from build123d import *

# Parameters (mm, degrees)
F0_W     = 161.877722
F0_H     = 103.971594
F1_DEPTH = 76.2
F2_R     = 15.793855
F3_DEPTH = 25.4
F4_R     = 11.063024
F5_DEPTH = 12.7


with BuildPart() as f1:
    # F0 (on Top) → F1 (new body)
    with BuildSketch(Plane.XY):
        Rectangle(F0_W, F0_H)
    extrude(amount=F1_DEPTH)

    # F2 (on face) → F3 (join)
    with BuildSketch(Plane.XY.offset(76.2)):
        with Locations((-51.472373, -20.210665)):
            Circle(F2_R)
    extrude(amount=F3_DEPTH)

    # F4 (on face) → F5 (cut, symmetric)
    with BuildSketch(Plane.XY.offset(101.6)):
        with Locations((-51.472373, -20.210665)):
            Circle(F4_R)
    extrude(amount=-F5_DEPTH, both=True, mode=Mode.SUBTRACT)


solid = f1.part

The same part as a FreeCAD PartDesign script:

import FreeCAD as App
import Part
import Sketcher
from FreeCAD import Vector
Q = App.Units.Quantity


def add_polygon(sketch, points):
    """Adds a closed chain of lines whose ends are joined by coincident constraints."""
    first, n = sketch.GeometryCount, len(points)
    for a, b in zip(points, points[1:] + points[:1]):
        sketch.addGeometry(Part.LineSegment(App.Vector(*a, 0), App.Vector(*b, 0)), False)
    for i in range(n):
        sketch.addConstraint(Sketcher.Constraint("Coincident", first + i, 2, first + (i + 1) % n, 1))

doc = App.newDocument("Part")
body = doc.addObject("PartDesign::Body", "Body")

sketch1 = body.newObject("Sketcher::SketchObject", "Sketch")
sketch1.AttachmentSupport = (doc.getObject("XY_Plane"), [""])
sketch1.MapMode = "FlatFace"
add_polygon(sketch1, [(-81, 52), (-81, -52), (81, -52), (81, 52)])
sketch1.addConstraint([
    Sketcher.Constraint("Vertical", 0),
    Sketcher.Constraint("Horizontal", 1),
    Sketcher.Constraint("Vertical", 2),
    Sketcher.Constraint("Horizontal", 3),
    Sketcher.Constraint("Symmetric", 0, 2, 2, 2, -1, 1),
    Sketcher.Constraint("DistanceX", 1, 1, 1, 2, Q("161.877722 mm")),
    Sketcher.Constraint("DistanceY", 0, 2, 0, 1, Q("103.971594 mm")),
])
pad1 = body.newObject("PartDesign::Pad", "Pad")
pad1.Profile = sketch1
pad1.Length = Q("3 in")

sketch2 = body.newObject("Sketcher::SketchObject", "Sketch001")
sketch2.AttachmentSupport = (doc.getObject("XY_Plane"), [""])
sketch2.MapMode = "FlatFace"
sketch2.AttachmentOffset = App.Placement(Vector(0, 0, 3 * 25.4), App.Rotation())
sketch2.addGeometry(Part.Circle(Vector(-51, -20, 0), Vector(0, 0, 1), 16), False)
sketch2.addConstraint([
    Sketcher.Constraint("Diameter", 0, Q("31.58771 mm")),
    Sketcher.Constraint("DistanceX", 0, 3, -1, 1, Q("51.472373 mm")),
    Sketcher.Constraint("DistanceY", 0, 3, -1, 1, Q("20.210665 mm")),
])
pad2 = body.newObject("PartDesign::Pad", "Pad001")
pad2.Profile = sketch2
pad2.Length = Q("1 in")

sketch3 = body.newObject("Sketcher::SketchObject", "Sketch002")
sketch3.AttachmentSupport = (doc.getObject("XY_Plane"), [""])
sketch3.MapMode = "FlatFace"
sketch3.AttachmentOffset = App.Placement(Vector(0, 0, 4 * 25.4), App.Rotation())
sketch3.addGeometry(Part.Circle(Vector(-51, -20, 0), Vector(0, 0, 1), 11), False)
sketch3.addConstraint([
    Sketcher.Constraint("Diameter", 0, Q("22.126048 mm")),
    Sketcher.Constraint("DistanceX", 0, 3, -1, 1, Q("51.472373 mm")),
    Sketcher.Constraint("DistanceY", 0, 3, -1, 1, Q("20.210665 mm")),
])
pocket1 = body.newObject("PartDesign::Pocket", "Pocket")
pocket1.Profile = sketch3
pocket1.Length = Q("1 in")
pocket1.Midplane = True

doc.recompute()
